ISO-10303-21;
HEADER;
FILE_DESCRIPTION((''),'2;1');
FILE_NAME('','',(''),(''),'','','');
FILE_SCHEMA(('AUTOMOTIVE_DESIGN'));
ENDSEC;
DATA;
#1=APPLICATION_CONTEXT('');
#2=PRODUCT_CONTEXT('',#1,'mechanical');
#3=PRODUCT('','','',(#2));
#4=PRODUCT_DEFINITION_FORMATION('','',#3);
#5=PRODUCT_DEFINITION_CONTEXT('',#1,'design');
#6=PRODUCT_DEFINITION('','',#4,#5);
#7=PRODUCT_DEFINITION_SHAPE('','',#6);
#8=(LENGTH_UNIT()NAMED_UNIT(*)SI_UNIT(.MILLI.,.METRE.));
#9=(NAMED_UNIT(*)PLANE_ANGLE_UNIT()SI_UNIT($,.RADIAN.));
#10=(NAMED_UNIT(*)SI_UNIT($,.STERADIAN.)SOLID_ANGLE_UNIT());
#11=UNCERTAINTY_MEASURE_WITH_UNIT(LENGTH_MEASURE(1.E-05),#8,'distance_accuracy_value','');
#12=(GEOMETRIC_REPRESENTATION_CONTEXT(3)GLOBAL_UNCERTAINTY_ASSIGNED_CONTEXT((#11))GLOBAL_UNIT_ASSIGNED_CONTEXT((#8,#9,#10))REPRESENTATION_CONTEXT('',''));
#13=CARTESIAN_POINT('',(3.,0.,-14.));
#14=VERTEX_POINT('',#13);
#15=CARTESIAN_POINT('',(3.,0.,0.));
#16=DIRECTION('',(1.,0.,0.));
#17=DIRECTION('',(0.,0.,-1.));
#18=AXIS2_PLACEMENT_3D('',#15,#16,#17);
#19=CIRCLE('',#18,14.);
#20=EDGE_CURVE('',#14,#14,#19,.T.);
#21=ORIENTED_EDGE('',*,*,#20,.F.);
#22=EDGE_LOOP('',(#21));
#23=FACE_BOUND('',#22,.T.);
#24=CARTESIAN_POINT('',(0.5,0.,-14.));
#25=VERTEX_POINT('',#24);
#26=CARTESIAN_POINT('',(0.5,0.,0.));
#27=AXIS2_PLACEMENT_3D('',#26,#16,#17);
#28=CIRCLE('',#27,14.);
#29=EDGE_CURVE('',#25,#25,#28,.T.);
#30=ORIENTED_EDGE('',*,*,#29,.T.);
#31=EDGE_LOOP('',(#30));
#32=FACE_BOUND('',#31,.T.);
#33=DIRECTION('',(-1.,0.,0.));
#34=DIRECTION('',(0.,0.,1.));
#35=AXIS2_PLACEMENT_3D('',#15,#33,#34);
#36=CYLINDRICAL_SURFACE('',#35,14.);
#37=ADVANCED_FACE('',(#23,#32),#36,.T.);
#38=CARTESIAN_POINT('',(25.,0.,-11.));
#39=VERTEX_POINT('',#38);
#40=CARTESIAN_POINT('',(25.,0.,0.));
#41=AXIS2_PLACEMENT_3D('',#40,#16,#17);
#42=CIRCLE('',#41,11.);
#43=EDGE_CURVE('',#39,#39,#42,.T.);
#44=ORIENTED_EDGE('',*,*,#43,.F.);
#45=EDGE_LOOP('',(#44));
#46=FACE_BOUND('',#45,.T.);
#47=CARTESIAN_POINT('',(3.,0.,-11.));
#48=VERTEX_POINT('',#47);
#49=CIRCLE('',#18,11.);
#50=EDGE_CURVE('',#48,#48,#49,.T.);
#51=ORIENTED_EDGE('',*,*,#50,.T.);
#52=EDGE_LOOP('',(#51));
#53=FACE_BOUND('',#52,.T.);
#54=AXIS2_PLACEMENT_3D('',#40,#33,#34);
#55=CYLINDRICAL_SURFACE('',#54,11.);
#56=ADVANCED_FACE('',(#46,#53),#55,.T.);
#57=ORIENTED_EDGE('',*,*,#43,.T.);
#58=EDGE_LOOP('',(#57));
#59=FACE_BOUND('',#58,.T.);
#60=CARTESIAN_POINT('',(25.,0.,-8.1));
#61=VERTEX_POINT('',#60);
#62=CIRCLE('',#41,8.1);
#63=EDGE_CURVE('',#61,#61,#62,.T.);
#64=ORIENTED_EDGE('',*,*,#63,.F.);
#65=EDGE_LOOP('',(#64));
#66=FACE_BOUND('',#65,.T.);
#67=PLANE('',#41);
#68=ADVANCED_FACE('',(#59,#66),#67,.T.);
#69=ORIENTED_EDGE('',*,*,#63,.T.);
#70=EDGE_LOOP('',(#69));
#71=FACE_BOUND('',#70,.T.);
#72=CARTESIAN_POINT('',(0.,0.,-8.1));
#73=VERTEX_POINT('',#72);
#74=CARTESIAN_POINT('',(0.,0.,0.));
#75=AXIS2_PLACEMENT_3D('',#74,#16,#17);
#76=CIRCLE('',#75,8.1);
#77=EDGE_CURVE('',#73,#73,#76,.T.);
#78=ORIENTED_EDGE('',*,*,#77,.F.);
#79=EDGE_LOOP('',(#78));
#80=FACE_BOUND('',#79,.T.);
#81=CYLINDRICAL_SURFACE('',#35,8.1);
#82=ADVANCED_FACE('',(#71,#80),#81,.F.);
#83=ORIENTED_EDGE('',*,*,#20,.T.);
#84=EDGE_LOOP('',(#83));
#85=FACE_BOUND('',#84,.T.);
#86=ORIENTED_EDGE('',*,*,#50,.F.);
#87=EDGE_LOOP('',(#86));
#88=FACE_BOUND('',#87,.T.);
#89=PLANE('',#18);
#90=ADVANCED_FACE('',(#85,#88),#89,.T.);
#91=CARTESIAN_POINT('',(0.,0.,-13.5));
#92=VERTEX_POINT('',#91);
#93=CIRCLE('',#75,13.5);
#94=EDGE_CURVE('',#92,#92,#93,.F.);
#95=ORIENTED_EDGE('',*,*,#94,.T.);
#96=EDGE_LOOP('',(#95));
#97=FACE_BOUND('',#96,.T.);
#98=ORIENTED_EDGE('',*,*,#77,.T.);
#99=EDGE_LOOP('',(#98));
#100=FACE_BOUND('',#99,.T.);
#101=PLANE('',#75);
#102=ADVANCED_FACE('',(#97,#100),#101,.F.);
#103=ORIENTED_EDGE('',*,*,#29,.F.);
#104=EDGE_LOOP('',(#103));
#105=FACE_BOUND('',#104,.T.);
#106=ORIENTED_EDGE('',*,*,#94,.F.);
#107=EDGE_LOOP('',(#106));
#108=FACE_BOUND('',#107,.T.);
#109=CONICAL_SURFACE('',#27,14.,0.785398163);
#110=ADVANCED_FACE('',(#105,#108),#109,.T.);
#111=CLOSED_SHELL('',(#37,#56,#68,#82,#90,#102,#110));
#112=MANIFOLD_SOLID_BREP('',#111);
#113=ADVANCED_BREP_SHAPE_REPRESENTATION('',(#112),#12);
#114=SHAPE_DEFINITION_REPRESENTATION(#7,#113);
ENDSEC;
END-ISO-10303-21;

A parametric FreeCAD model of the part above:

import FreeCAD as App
import Part
import Sketcher


def edges_at(feature, points):
    """Names of the edges that pass closest to the given points."""
    edges = feature.Shape.Edges
    near = lambda p: min(range(len(edges)), key=lambda i: edges[i].distToShape(Part.Vertex(*p))[0])
    return sorted({f"Edge{near(p) + 1}" for p in points})

doc = App.newDocument("Part")
params = doc.addObject("Spreadsheet::Sheet", "Params")
for row, (alias, value) in enumerate([
    ("sketch1_diameter", "28 mm"),
    ("sketch1_diameter2", "16.2 mm"),
    ("pad1_length", "3 mm"),
    ("sketch2_diameter", "22 mm"),
    ("sketch2_diameter2", "16.2 mm"),
    ("pad2_length", "22 mm"),
    ("chamfer_size", "0.5 mm"),
], start=1):
    params.set(f"A{row}", alias)
    params.set(f"B{row}", "=" + value)
    params.setAlias(f"B{row}", alias)

body = doc.addObject("PartDesign::Body", "Body")

sketch1 = body.newObject("Sketcher::SketchObject", "Sketch")
sketch1.AttachmentSupport = (doc.getObject("YZ_Plane"), [""])
sketch1.MapMode = "FlatFace"
sketch1.addGeometry([
    Part.Circle(App.Vector(0, 0, 0), App.Vector(0, 0, 1), 14),
    Part.Circle(App.Vector(0, 0, 0), App.Vector(0, 0, 1), 8),
], False)
sketch1.addConstraint([
    Sketcher.Constraint("Coincident", 0, 3, -1, 1),
    Sketcher.Constraint("Coincident", 1, 3, -1, 1),
    Sketcher.Constraint("Diameter", 0, 28.0),
    Sketcher.Constraint("Diameter", 1, 16.2),
])
sketch1.setExpression("Constraints[2]", "Params.sketch1_diameter")
sketch1.setExpression("Constraints[3]", "Params.sketch1_diameter2")
pad1 = body.newObject("PartDesign::Pad", "Pad")
pad1.Profile = sketch1
pad1.setExpression("Length", "Params.pad1_length")

sketch2 = body.newObject("Sketcher::SketchObject", "Sketch001")
sketch2.AttachmentSupport = (doc.getObject("YZ_Plane"), [""])
sketch2.MapMode = "FlatFace"
sketch2.AttachmentOffset = App.Placement(App.Vector(0, 0, 3), App.Rotation())
sketch2.addGeometry([
    Part.Circle(App.Vector(0, 0, 0), App.Vector(0, 0, 1), 11),
    Part.Circle(App.Vector(0, 0, 0), App.Vector(0, 0, 1), 8),
], False)
sketch2.addConstraint([
    Sketcher.Constraint("Coincident", 0, 3, -1, 1),
    Sketcher.Constraint("Coincident", 1, 3, -1, 1),
    Sketcher.Constraint("Diameter", 0, 22.0),
    Sketcher.Constraint("Diameter", 1, 16.2),
])
sketch2.setExpression("Constraints[2]", "Params.sketch2_diameter")
sketch2.setExpression("Constraints[3]", "Params.sketch2_diameter2")
pad2 = body.newObject("PartDesign::Pad", "Pad001")
pad2.Profile = sketch2
pad2.setExpression("Length", "Params.pad2_length")
doc.recompute()

chamfer = body.newObject("PartDesign::Chamfer", "Chamfer")
chamfer.Base = (pad2, edges_at(pad2, [(0, 0, 14)]))
chamfer.setExpression("Size", "Params.chamfer_size")

doc.recompute()
